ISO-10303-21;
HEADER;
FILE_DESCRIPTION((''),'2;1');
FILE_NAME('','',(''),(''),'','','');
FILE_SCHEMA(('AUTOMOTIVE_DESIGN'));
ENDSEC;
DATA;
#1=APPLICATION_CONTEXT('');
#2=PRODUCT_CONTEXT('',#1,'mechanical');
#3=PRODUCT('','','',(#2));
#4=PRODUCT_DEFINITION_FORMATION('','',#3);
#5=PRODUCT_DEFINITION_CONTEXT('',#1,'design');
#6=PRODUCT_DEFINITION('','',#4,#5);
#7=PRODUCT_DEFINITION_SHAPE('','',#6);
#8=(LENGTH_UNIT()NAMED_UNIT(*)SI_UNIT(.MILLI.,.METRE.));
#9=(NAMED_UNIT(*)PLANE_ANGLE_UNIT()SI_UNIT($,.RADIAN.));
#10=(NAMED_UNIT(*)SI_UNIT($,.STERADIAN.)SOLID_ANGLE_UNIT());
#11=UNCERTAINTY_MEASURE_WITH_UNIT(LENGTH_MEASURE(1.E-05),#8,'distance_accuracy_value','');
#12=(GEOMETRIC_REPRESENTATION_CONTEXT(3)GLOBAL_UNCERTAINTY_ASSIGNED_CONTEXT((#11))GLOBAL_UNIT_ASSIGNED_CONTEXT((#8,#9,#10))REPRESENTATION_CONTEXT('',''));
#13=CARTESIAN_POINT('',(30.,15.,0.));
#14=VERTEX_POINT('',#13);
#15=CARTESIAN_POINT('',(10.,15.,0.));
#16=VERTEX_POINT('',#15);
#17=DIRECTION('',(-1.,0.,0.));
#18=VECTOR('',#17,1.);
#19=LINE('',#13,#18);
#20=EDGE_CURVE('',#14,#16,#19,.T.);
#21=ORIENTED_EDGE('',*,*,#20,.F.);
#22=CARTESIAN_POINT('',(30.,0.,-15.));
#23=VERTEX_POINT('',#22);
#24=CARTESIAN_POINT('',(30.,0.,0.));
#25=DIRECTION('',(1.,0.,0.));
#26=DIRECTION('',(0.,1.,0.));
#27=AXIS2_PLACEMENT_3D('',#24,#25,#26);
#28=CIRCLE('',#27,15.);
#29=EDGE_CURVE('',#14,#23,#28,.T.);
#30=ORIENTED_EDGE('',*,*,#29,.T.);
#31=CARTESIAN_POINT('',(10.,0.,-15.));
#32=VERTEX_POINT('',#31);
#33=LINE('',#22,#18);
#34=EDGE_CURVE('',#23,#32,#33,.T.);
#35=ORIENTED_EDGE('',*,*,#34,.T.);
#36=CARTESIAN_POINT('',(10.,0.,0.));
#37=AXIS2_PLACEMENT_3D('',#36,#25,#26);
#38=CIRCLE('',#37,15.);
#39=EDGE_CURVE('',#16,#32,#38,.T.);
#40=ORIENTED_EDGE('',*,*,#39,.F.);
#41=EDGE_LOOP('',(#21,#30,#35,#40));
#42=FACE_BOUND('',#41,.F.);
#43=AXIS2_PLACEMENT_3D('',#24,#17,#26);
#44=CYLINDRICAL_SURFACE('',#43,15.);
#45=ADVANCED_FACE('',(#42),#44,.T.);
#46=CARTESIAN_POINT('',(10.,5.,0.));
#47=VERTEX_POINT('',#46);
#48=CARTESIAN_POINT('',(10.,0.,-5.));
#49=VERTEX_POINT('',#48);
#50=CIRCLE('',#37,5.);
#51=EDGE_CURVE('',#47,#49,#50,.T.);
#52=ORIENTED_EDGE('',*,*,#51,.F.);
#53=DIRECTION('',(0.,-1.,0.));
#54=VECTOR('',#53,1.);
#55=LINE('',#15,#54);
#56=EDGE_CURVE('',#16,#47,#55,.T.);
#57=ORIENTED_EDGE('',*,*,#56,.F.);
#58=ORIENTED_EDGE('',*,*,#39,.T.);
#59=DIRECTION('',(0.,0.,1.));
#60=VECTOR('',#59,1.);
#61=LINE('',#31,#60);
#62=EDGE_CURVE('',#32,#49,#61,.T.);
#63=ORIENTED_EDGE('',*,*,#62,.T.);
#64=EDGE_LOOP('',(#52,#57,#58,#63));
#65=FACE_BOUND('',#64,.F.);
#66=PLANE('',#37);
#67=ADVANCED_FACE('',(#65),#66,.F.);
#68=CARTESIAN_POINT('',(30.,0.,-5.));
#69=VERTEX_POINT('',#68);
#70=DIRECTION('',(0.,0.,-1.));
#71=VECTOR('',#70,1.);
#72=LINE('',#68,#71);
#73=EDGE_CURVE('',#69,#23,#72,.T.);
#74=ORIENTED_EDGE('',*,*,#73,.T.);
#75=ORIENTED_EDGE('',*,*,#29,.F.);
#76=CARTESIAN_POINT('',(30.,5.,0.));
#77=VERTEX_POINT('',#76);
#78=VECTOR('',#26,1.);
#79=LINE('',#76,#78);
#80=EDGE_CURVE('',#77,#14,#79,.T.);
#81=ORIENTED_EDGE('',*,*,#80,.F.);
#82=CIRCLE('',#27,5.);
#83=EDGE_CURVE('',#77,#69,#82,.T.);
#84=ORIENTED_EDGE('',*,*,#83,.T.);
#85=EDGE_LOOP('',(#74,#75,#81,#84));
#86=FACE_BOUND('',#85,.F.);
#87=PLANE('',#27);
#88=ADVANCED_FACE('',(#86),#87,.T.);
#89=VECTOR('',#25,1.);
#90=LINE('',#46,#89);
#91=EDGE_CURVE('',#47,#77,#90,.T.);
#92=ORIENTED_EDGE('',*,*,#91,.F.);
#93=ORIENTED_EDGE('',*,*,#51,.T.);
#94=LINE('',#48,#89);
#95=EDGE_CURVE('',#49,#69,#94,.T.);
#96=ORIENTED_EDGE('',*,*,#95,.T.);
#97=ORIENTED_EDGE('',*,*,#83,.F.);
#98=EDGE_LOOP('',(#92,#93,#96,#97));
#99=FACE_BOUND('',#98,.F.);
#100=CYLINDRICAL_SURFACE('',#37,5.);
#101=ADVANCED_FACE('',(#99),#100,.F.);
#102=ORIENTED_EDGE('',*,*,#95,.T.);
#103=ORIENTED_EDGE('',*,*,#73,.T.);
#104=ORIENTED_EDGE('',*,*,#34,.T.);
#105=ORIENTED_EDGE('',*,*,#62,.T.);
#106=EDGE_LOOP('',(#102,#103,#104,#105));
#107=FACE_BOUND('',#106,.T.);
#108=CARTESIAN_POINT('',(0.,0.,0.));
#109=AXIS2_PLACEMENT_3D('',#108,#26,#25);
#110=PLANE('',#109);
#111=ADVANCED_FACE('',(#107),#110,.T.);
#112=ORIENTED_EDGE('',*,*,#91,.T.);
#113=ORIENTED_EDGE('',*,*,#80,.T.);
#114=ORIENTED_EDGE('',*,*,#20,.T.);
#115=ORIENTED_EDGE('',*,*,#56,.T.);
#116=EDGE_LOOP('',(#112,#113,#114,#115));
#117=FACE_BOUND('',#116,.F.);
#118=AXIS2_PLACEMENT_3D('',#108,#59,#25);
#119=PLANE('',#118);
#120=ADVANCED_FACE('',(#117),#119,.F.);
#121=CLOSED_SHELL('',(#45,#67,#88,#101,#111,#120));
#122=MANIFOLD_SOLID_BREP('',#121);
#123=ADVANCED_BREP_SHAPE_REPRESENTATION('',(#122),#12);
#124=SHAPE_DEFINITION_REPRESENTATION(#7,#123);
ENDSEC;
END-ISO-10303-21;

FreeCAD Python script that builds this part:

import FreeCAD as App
import Part
import Sketcher

V = App.Vector


def add_polygon(sketch, points):
    """Adds a closed chain of lines whose ends are joined by coincident constraints."""
    first, n = sketch.GeometryCount, len(points)
    for a, b in zip(points, points[1:] + points[:1]):
        sketch.addGeometry(Part.LineSegment(App.Vector(*a, 0), App.Vector(*b, 0)), False)
    for i in range(n):
        sketch.addConstraint(Sketcher.Constraint("Coincident", first + i, 2, first + (i + 1) % n, 1))

doc = App.newDocument("Part")
params = doc.addObject("Spreadsheet::Sheet", "Params")
for row, (alias, value) in enumerate([
    ("sketch1_width", "20 mm"),
    ("sketch1_height", "10 mm"),
    ("revolution_angle", "270 deg"),
], start=1):
    params.set(f"A{row}", alias)
    params.set(f"B{row}", "=" + value)
    params.setAlias(f"B{row}", alias)

body = doc.addObject("PartDesign::Body", "Body")

# Sketch on XY plane
sketch1 = body.newObject("Sketcher::SketchObject", "Sketch")
sketch1.AttachmentSupport = (doc.getObject("XY_Plane"), [""])
sketch1.MapMode = "FlatFace"
add_polygon(sketch1, [(10, 15), (10, 5), (30, 5), (30, 15)])  # lines 0-3
sketch1.addConstraint(Sketcher.Constraint("Vertical", 0))
sketch1.addConstraint(Sketcher.Constraint("Horizontal", 1))
sketch1.addConstraint(Sketcher.Constraint("Vertical", 2))
sketch1.addConstraint(Sketcher.Constraint("Horizontal", 3))
sketch1.addConstraint(Sketcher.Constraint("DistanceX", 1, 1, 1, 2, 20.0))
sketch1.addConstraint(Sketcher.Constraint("DistanceY", 0, 2, 0, 1, 10.0))
sketch1.addConstraint(Sketcher.Constraint("DistanceX", -1, 1, 0, 2, 10.0))
sketch1.addConstraint(Sketcher.Constraint("DistanceY", -1, 1, 0, 2, 5.0))
sketch1.setExpression("Constraints[8]", "Params.sketch1_width")
sketch1.setExpression("Constraints[9]", "Params.sketch1_height")
revolution = body.newObject("PartDesign::Revolution", "Revolution")
revolution.Profile = sketch1
revolution.ReferenceAxis = (sketch1, ["H_Axis"])
revolution.setExpression("Angle", "Params.revolution_angle")

doc.recompute()
